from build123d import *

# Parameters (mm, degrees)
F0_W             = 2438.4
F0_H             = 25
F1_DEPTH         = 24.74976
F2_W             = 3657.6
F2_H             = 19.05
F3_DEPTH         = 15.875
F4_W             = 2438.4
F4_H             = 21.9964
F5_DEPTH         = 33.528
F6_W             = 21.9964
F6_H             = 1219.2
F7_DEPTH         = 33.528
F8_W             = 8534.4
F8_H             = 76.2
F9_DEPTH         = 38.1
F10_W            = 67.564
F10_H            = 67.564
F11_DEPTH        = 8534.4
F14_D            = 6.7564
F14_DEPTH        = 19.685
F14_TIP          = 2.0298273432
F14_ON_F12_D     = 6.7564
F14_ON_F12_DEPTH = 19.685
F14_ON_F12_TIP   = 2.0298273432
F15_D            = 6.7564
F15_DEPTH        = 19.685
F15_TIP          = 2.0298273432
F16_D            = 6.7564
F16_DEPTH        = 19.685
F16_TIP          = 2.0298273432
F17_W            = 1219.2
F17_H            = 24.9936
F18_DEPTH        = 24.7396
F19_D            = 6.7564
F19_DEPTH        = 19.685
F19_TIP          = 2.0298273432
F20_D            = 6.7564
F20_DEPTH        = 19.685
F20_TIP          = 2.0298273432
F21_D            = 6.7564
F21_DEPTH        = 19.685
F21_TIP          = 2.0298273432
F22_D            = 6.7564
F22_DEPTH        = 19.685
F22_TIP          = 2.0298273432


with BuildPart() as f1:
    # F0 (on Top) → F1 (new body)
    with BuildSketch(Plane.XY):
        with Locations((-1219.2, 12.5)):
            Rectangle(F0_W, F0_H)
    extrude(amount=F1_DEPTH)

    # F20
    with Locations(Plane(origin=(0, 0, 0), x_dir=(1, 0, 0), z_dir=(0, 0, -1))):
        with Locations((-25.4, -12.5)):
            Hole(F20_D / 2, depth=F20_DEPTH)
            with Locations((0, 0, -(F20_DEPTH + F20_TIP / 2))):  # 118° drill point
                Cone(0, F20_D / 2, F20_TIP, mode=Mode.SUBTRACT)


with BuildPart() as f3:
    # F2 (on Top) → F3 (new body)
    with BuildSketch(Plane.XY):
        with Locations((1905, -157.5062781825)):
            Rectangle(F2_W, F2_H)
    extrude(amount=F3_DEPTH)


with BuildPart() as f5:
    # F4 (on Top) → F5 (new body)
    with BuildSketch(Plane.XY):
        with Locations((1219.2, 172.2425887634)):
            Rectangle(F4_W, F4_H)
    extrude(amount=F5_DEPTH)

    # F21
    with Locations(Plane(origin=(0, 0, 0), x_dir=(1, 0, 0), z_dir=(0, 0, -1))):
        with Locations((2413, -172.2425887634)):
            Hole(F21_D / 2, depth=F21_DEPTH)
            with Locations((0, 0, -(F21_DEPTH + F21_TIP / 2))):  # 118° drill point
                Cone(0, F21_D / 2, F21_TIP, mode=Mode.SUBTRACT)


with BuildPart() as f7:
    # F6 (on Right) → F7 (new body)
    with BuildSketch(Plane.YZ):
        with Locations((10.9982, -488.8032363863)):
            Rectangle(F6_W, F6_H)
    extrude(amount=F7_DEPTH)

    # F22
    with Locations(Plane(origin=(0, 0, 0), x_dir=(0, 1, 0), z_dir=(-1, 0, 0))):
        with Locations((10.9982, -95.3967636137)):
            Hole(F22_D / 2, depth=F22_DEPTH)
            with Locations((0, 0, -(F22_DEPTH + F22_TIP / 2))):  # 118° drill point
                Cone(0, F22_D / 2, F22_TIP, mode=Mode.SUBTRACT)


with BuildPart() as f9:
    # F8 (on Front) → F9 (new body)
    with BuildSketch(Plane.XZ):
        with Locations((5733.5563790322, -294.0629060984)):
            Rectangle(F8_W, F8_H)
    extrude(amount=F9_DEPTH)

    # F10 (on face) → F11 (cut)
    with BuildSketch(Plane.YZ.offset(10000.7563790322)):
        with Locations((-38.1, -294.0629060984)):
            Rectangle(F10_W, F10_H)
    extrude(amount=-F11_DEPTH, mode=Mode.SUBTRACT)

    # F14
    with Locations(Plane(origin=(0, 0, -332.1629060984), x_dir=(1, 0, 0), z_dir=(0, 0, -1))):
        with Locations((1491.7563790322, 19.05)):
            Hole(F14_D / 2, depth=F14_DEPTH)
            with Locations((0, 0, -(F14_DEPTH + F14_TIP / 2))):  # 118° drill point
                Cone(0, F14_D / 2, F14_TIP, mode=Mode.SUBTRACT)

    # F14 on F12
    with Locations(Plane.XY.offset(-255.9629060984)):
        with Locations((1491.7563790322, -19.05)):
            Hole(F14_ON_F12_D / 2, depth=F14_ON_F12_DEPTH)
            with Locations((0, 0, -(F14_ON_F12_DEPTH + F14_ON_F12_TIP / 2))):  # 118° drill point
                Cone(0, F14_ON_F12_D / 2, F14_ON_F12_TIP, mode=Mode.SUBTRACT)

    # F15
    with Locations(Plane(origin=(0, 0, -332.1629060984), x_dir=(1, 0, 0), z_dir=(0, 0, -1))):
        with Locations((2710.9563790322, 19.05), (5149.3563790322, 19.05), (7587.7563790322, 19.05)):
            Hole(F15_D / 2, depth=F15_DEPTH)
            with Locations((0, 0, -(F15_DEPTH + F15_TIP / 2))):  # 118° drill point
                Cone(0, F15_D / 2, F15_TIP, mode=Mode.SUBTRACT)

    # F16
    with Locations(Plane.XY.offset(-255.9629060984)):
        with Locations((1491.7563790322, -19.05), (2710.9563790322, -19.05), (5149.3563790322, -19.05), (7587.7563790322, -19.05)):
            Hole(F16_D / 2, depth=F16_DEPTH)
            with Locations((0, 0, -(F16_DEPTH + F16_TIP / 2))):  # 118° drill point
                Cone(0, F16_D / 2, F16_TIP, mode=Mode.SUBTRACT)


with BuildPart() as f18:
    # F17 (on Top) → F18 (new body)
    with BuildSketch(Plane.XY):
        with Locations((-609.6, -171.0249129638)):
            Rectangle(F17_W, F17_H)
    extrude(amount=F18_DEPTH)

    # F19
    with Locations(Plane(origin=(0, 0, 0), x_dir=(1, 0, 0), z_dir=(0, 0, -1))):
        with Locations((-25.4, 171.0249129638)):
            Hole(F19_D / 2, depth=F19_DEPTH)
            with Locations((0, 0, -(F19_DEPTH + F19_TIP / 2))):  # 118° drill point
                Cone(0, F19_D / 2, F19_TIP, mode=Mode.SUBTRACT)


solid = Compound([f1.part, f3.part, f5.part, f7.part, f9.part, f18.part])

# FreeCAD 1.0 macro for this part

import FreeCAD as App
import Part
import Sketcher
from FreeCAD import Vector
Q = App.Units.Quantity

doc = App.newDocument("Part")
body = doc.addObject("PartDesign::Body", "Body")

# Sketch on XY plane
sketch1 = doc.addObject("Sketcher::SketchObject", "Sketch")
body.addObject(sketch1)
sketch1.AttachmentSupport = (doc.XY_Plane, [""])
sketch1.MapMode = "FlatFace"
sketch1.addGeometry([
    Part.LineSegment(Vector(-2438, 25, 0), Vector(-2438, 0, 0)),
    Part.LineSegment(Vector(-2438, 0, 0), Vector(0, 0, 0)),
    Part.LineSegment(Vector(0, 0, 0), Vector(0, 25, 0)),
    Part.LineSegment(Vector(0, 25, 0), Vector(-2438, 25, 0)),
], False)
sketch1.addConstraint([
    Sketcher.Constraint("Coincident", 0, 2, 1, 1),
    Sketcher.Constraint("Coincident", 1, 2, 2, 1),
    Sketcher.Constraint("Coincident", 2, 2, 3, 1),
    Sketcher.Constraint("Coincident", 3, 2, 0, 1),
    Sketcher.Constraint("Vertical", 0),
    Sketcher.Constraint("Horizontal", 1),
    Sketcher.Constraint("Vertical", 2),
    Sketcher.Constraint("Horizontal", 3),
    Sketcher.Constraint("Coincident", 1, 2, -1, 1),
    Sketcher.Constraint("DistanceX", 1, 1, 1, 2, Q("96 in")),
    Sketcher.Constraint("DistanceY", 0, 2, 0, 1, 25.0),
])
pad1 = doc.addObject("PartDesign::Pad", "Pad")
body.addObject(pad1)
pad1.Profile = sketch1
pad1.Length = Q("0.9744 in")

# Sketch on XY plane
sketch2 = doc.addObject("Sketcher::SketchObject", "Sketch001")
body.addObject(sketch2)
sketch2.AttachmentSupport = (doc.XY_Plane, [""])
sketch2.MapMode = "FlatFace"
sketch2.addGeometry(Part.Circle(Vector(-25.4, 12.5, 0), Vector(0, 0, 1), 3.4), False)
sketch2.addConstraint([
    Sketcher.Constraint("Diameter", 0, Q("0.266 in")),
    Sketcher.Constraint("DistanceX", 0, 3, -1, 1, Q("1 in")),
    Sketcher.Constraint("DistanceY", -1, 1, 0, 3, 12.5),
])
doc.recompute()
hole = doc.addObject("PartDesign::Hole", "Hole")
body.addObject(hole)
hole.Profile = sketch2
hole.ThreadType = "None"
hole.Diameter = Q("0.266 in")
hole.DepthType = "Dimension"
hole.Depth = Q("0.775 in")
hole.DrillPoint = "Angled"
hole.DrillPointAngle = 118
hole.Reversed = True
body2 = doc.addObject("PartDesign::Body", "Body001")

# Sketch on XY plane
sketch3 = doc.addObject("Sketcher::SketchObject", "Sketch002")
body2.addObject(sketch3)
sketch3.AttachmentSupport = (doc.getObject("XY_Plane001"), [""])
sketch3.MapMode = "FlatFace"
sketch3.addGeometry([
    Part.LineSegment(Vector(76, -148, 0), Vector(76, -167, 0)),
    Part.LineSegment(Vector(76, -167, 0), Vector(3734, -167, 0)),
    Part.LineSegment(Vector(3734, -167, 0), Vector(3734, -148, 0)),
    Part.LineSegment(Vector(3734, -148, 0), Vector(76, -148, 0)),
], False)
sketch3.addConstraint([
    Sketcher.Constraint("Coincident", 0, 2, 1, 1),
    Sketcher.Constraint("Coincident", 1, 2, 2, 1),
    Sketcher.Constraint("Coincident", 2, 2, 3, 1),
    Sketcher.Constraint("Coincident", 3, 2, 0, 1),
    Sketcher.Constraint("Vertical", 0),
    Sketcher.Constraint("Horizontal", 1),
    Sketcher.Constraint("Vertical", 2),
    Sketcher.Constraint("Horizontal", 3),
    Sketcher.Constraint("DistanceX", 1, 1, 1, 2, Q("144 in")),
    Sketcher.Constraint("DistanceX", -1, 1, 0, 2, Q("3 in")),
    Sketcher.Constraint("DistanceY", 0, 2, 0, 1, Q("0.75 in")),
    Sketcher.Constraint("DistanceY", 0, 2, -1, 1, 167.031278),
])
pad2 = doc.addObject("PartDesign::Pad", "Pad001")
body2.addObject(pad2)
pad2.Profile = sketch3
pad2.Length = Q("0.625 in")
body3 = doc.addObject("PartDesign::Body", "Body002")

# Sketch on XY plane
sketch4 = doc.addObject("Sketcher::SketchObject", "Sketch003")
body3.addObject(sketch4)
sketch4.AttachmentSupport = (doc.getObject("XY_Plane002"), [""])
sketch4.MapMode = "FlatFace"
sketch4.addGeometry([
    Part.LineSegment(Vector(0, 183, 0), Vector(0, 161, 0)),
    Part.LineSegment(Vector(0, 161, 0), Vector(2438, 161, 0)),
    Part.LineSegment(Vector(2438, 161, 0), Vector(2438, 183, 0)),
    Part.LineSegment(Vector(2438, 183, 0), Vector(0, 183, 0)),
], False)
sketch4.addConstraint([
    Sketcher.Constraint("Coincident", 0, 2, 1, 1),
    Sketcher.Constraint("Coincident", 1, 2, 2, 1),
    Sketcher.Constraint("Coincident", 2, 2, 3, 1),
    Sketcher.Constraint("Coincident", 3, 2, 0, 1),
    Sketcher.Constraint("Vertical", 0),
    Sketcher.Constraint("Horizontal", 1),
    Sketcher.Constraint("Vertical", 2),
    Sketcher.Constraint("Horizontal", 3),
    Sketcher.Constraint("PointOnObject", 0, 2, -2),
    Sketcher.Constraint("DistanceX", 1, 1, 1, 2, Q("96 in")),
    Sketcher.Constraint("DistanceY", 0, 2, 0, 1, Q("0.866 in")),
    Sketcher.Constraint("DistanceY", -1, 1, 0, 2, 161.244389),
])
pad3 = doc.addObject("PartDesign::Pad", "Pad002")
body3.addObject(pad3)
pad3.Profile = sketch4
pad3.Length = Q("1.32 in")

# Sketch on XY plane
sketch5 = doc.addObject("Sketcher::SketchObject", "Sketch004")
body3.addObject(sketch5)
sketch5.AttachmentSupport = (doc.getObject("XY_Plane002"), [""])
sketch5.MapMode = "FlatFace"
sketch5.addGeometry(Part.Circle(Vector(2413, 172.2, 0), Vector(0, 0, 1), 3.4), False)
sketch5.addConstraint([
    Sketcher.Constraint("Diameter", 0, Q("0.266 in")),
    Sketcher.Constraint("DistanceX", -1, 1, 0, 3, Q("95 in")),
    Sketcher.Constraint("DistanceY", -1, 1, 0, 3, 172.242589),
])
doc.recompute()
hole2 = doc.addObject("PartDesign::Hole", "Hole001")
body3.addObject(hole2)
hole2.Profile = sketch5
hole2.ThreadType = "None"
hole2.Diameter = Q("0.266 in")
hole2.DepthType = "Dimension"
hole2.Depth = Q("0.775 in")
hole2.DrillPoint = "Angled"
hole2.DrillPointAngle = 118
hole2.Reversed = True
body4 = doc.addObject("PartDesign::Body", "Body003")

# Sketch on YZ plane
sketch6 = doc.addObject("Sketcher::SketchObject", "Sketch005")
body4.addObject(sketch6)
sketch6.AttachmentSupport = (doc.getObject("YZ_Plane003"), [""])
sketch6.MapMode = "FlatFace"
sketch6.addGeometry([
    Part.LineSegment(Vector(0, 121, 0), Vector(0, -1098, 0)),
    Part.LineSegment(Vector(0, -1098, 0), Vector(22, -1098, 0)),
    Part.LineSegment(Vector(22, -1098, 0), Vector(22, 121, 0)),
    Part.LineSegment(Vector(22, 121, 0), Vector(0, 121, 0)),
], False)
sketch6.addConstraint([
    Sketcher.Constraint("Coincident", 0, 2, 1, 1),
    Sketcher.Constraint("Coincident", 1, 2, 2, 1),
    Sketcher.Constraint("Coincident", 2, 2, 3, 1),
    Sketcher.Constraint("Coincident", 3, 2, 0, 1),
    Sketcher.Constraint("Vertical", 0),
    Sketcher.Constraint("Horizontal", 1),
    Sketcher.Constraint("Vertical", 2),
    Sketcher.Constraint("Horizontal", 3),
    Sketcher.Constraint("PointOnObject", 0, 2, -2),
    Sketcher.Constraint("DistanceY", 0, 2, 0, 1, Q("48 in")),
    Sketcher.Constraint("DistanceX", 1, 1, 1, 2, Q("0.866 in")),
    Sketcher.Constraint("DistanceY", 0, 2, -1, 1, 1098.403236),
])
pad4 = doc.addObject("PartDesign::Pad", "Pad003")
body4.addObject(pad4)
pad4.Profile = sketch6
pad4.Length = Q("1.32 in")

# Sketch on YZ plane
sketch7 = doc.addObject("Sketcher::SketchObject", "Sketch006")
body4.addObject(sketch7)
sketch7.AttachmentSupport = (doc.getObject("YZ_Plane003"), [""])
sketch7.MapMode = "FlatFace"
sketch7.addGeometry(Part.Circle(Vector(11, 95.4, 0), Vector(0, 0, 1), 3.4), False)
sketch7.addConstraint([
    Sketcher.Constraint("Diameter", 0, Q("0.266 in")),
    Sketcher.Constraint("DistanceX", -1, 1, 0, 3, Q("0.433 in")),
    Sketcher.Constraint("DistanceY", -1, 1, 0, 3, 95.396764),
])
doc.recompute()
hole3 = doc.addObject("PartDesign::Hole", "Hole002")
body4.addObject(hole3)
hole3.Profile = sketch7
hole3.ThreadType = "None"
hole3.Diameter = Q("0.266 in")
hole3.DepthType = "Dimension"
hole3.Depth = Q("0.775 in")
hole3.DrillPoint = "Angled"
hole3.DrillPointAngle = 118
hole3.Reversed = True
body5 = doc.addObject("PartDesign::Body", "Body004")

# Sketch on XZ plane
sketch8 = doc.addObject("Sketcher::SketchObject", "Sketch007")
body5.addObject(sketch8)
sketch8.AttachmentSupport = (doc.getObject("XZ_Plane004"), [""])
sketch8.MapMode = "FlatFace"
sketch8.addGeometry([
    Part.LineSegment(Vector(1466, -256, 0), Vector(1466, -332, 0)),
    Part.LineSegment(Vector(1466, -332, 0), Vector(10001, -332, 0)),
    Part.LineSegment(Vector(10001, -332, 0), Vector(10001, -256, 0)),
    Part.LineSegment(Vector(10001, -256, 0), Vector(1466, -256, 0)),
], False)
sketch8.addConstraint([
    Sketcher.Constraint("Coincident", 0, 2, 1, 1),
    Sketcher.Constraint("Coincident", 1, 2, 2, 1),
    Sketcher.Constraint("Coincident", 2, 2, 3, 1),
    Sketcher.Constraint("Coincident", 3, 2, 0, 1),
    Sketcher.Constraint("Vertical", 0),
    Sketcher.Constraint("Horizontal", 1),
    Sketcher.Constraint("Vertical", 2),
    Sketcher.Constraint("Horizontal", 3),
    Sketcher.Constraint("DistanceX", 1, 1, 1, 2, Q("336 in")),
    Sketcher.Constraint("DistanceY", 0, 2, 0, 1, Q("3 in")),
    Sketcher.Constraint("DistanceX", -1, 1, 0, 2, 1466.356379),
    Sketcher.Constraint("DistanceY", 0, 2, -1, 1, 332.162906),
])
pad5 = doc.addObject("PartDesign::Pad", "Pad004")
body5.addObject(pad5)
pad5.Profile = sketch8
pad5.Length = Q("1.5 in")

# Sketch on YZ plane
sketch9 = doc.addObject("Sketcher::SketchObject", "Sketch008")
body5.addObject(sketch9)
sketch9.AttachmentSupport = (doc.getObject("YZ_Plane004"), [""])
sketch9.MapMode = "FlatFace"
sketch9.AttachmentOffset = App.Placement(Vector(0, 0, 10000.756379), App.Rotation())
sketch9.addGeometry([
    Part.LineSegment(Vector(-72, -260, 0), Vector(-72, -328, 0)),
    Part.LineSegment(Vector(-72, -328, 0), Vector(-4, -328, 0)),
    Part.LineSegment(Vector(-4, -328, 0), Vector(-4, -260, 0)),
    Part.LineSegment(Vector(-4, -260, 0), Vector(-72, -260, 0)),
], False)
sketch9.addConstraint([
    Sketcher.Constraint("Coincident", 0, 2, 1, 1),
    Sketcher.Constraint("Coincident", 1, 2, 2, 1),
    Sketcher.Constraint("Coincident", 2, 2, 3, 1),
    Sketcher.Constraint("Coincident", 3, 2, 0, 1),
    Sketcher.Constraint("Vertical", 0),
    Sketcher.Constraint("Horizontal", 1),
    Sketcher.Constraint("Vertical", 2),
    Sketcher.Constraint("Horizontal", 3),
    Sketcher.Constraint("Equal", 3, 0),
    Sketcher.Constraint("DistanceX", 1, 1, 1, 2, Q("2.66 in")),
    Sketcher.Constraint("DistanceX", 0, 2, -1, 1, Q("2.83 in")),
    Sketcher.Constraint("DistanceY", 0, 2, -1, 1, 327.844906),
])
pocket1 = doc.addObject("PartDesign::Pocket", "Pocket")
body5.addObject(pocket1)
pocket1.Profile = sketch9
pocket1.Length = Q("336 in")

# Sketch on XY plane
sketch10 = doc.addObject("Sketcher::SketchObject", "Sketch009")
body5.addObject(sketch10)
sketch10.AttachmentSupport = (doc.getObject("XY_Plane004"), [""])
sketch10.MapMode = "FlatFace"
sketch10.AttachmentOffset = App.Placement(Vector(0, 0, -332.162906), App.Rotation())
sketch10.addGeometry(Part.Circle(Vector(1491.8, -19.1, 0), Vector(0, 0, 1), 3.4), False)
sketch10.addConstraint([
    Sketcher.Constraint("Diameter", 0, Q("0.266 in")),
    Sketcher.Constraint("DistanceY", 0, 3, -1, 1, Q("0.75 in")),
    Sketcher.Constraint("DistanceX", -1, 1, 0, 3, 1491.756379),
])
doc.recompute()
hole4 = doc.addObject("PartDesign::Hole", "Hole003")
body5.addObject(hole4)
hole4.Profile = sketch10
hole4.ThreadType = "None"
hole4.Diameter = Q("0.266 in")
hole4.DepthType = "Dimension"
hole4.Depth = Q("0.775 in")
hole4.DrillPoint = "Angled"
hole4.DrillPointAngle = 118
hole4.Reversed = True

# Sketch on XY plane
sketch11 = doc.addObject("Sketcher::SketchObject", "Sketch010")
body5.addObject(sketch11)
sketch11.AttachmentSupport = (doc.getObject("XY_Plane004"), [""])
sketch11.MapMode = "FlatFace"
sketch11.AttachmentOffset = App.Placement(Vector(0, 0, -255.962906), App.Rotation())
sketch11.addGeometry(Part.Circle(Vector(1491.8, -19.1, 0), Vector(0, 0, 1), 3.4), False)
sketch11.addConstraint([
    Sketcher.Constraint("Diameter", 0, Q("0.266 in")),
    Sketcher.Constraint("DistanceY", 0, 3, -1, 1, Q("0.75 in")),
    Sketcher.Constraint("DistanceX", -1, 1, 0, 3, 1491.756379),
])
doc.recompute()
hole5 = doc.addObject("PartDesign::Hole", "Hole004")
body5.addObject(hole5)
hole5.Profile = sketch11
hole5.ThreadType = "None"
hole5.Diameter = Q("0.266 in")
hole5.DepthType = "Dimension"
hole5.Depth = Q("0.775 in")
hole5.DrillPoint = "Angled"
hole5.DrillPointAngle = 118

# Sketch on XY plane
sketch12 = doc.addObject("Sketcher::SketchObject", "Sketch011")
body5.addObject(sketch12)
sketch12.AttachmentSupport = (doc.getObject("XY_Plane004"), [""])
sketch12.MapMode = "FlatFace"
sketch12.AttachmentOffset = App.Placement(Vector(0, 0, -332.162906), App.Rotation())
sketch12.addGeometry([
    Part.Circle(Vector(2711, -19.1, 0), Vector(0, 0, 1), 3.4),
    Part.Circle(Vector(5149.4, -19.1, 0), Vector(0, 0, 1), 3.4),
    Part.Circle(Vector(7587.8, -19.1, 0), Vector(0, 0, 1), 3.4),
], False)
sketch12.addConstraint([
    Sketcher.Constraint("Equal", 0, 1),
    Sketcher.Constraint("Equal", 1, 2),
    Sketcher.Constraint("Horizontal", 0, 3, 1, 3),
    Sketcher.Constraint("Horizontal", 1, 3, 2, 3),
    Sketcher.Constraint("Diameter", 0, Q("0.266 in")),
    Sketcher.Constraint("DistanceX", 0, 3, 1, 3, Q("96 in")),
    Sketcher.Constraint("DistanceX", 1, 3, 2, 3, Q("96 in")),
    Sketcher.Constraint("DistanceY", 0, 3, -1, 1, Q("0.75 in")),
    Sketcher.Constraint("DistanceX", -1, 1, 0, 3, 2710.956379),
])
doc.recompute()
hole6 = doc.addObject("PartDesign::Hole", "Hole005")
body5.addObject(hole6)
hole6.Profile = sketch12
hole6.ThreadType = "None"
hole6.Diameter = Q("0.266 in")
hole6.DepthType = "Dimension"
hole6.Depth = Q("0.775 in")
hole6.DrillPoint = "Angled"
hole6.DrillPointAngle = 118
hole6.Reversed = True

# Sketch on XY plane
sketch13 = doc.addObject("Sketcher::SketchObject", "Sketch012")
body5.addObject(sketch13)
sketch13.AttachmentSupport = (doc.getObject("XY_Plane004"), [""])
sketch13.MapMode = "FlatFace"
sketch13.AttachmentOffset = App.Placement(Vector(0, 0, -255.962906), App.Rotation())
sketch13.addGeometry([
    Part.Circle(Vector(1491.8, -19.1, 0), Vector(0, 0, 1), 3.4),
    Part.Circle(Vector(2711, -19.1, 0), Vector(0, 0, 1), 3.4),
    Part.Circle(Vector(5149.4, -19.1, 0), Vector(0, 0, 1), 3.4),
    Part.Circle(Vector(7587.8, -19.1, 0), Vector(0, 0, 1), 3.4),
], False)
sketch13.addConstraint([
    Sketcher.Constraint("Equal", 0, 1),
    Sketcher.Constraint("Equal", 1, 2),
    Sketcher.Constraint("Equal", 2, 3),
    Sketcher.Constraint("Horizontal", 0, 3, 1, 3),
    Sketcher.Constraint("Horizontal", 1, 3, 2, 3),
    Sketcher.Constraint("Horizontal", 2, 3, 3, 3),
    Sketcher.Constraint("Diameter", 0, Q("0.266 in")),
    Sketcher.Constraint("DistanceX", 0, 3, 1, 3, Q("48 in")),
    Sketcher.Constraint("DistanceX", 1, 3, 2, 3, Q("96 in")),
    Sketcher.Constraint("DistanceX", 2, 3, 3, 3, Q("96 in")),
    Sketcher.Constraint("DistanceY", 0, 3, -1, 1, Q("0.75 in")),
    Sketcher.Constraint("DistanceX", -1, 1, 0, 3, 1491.756379),
])
doc.recompute()
hole7 = doc.addObject("PartDesign::Hole", "Hole006")
body5.addObject(hole7)
hole7.Profile = sketch13
hole7.ThreadType = "None"
hole7.Diameter = Q("0.266 in")
hole7.DepthType = "Dimension"
hole7.Depth = Q("0.775 in")
hole7.DrillPoint = "Angled"
hole7.DrillPointAngle = 118
body6 = doc.addObject("PartDesign::Body", "Body005")

# Sketch on XY plane
sketch14 = doc.addObject("Sketcher::SketchObject", "Sketch013")
body6.addObject(sketch14)
sketch14.AttachmentSupport = (doc.getObject("XY_Plane005"), [""])
sketch14.MapMode = "FlatFace"
sketch14.addGeometry([
    Part.LineSegment(Vector(-1219, -159, 0), Vector(-1219, -184, 0)),
    Part.LineSegment(Vector(-1219, -184, 0), Vector(0, -184, 0)),
    Part.LineSegment(Vector(0, -184, 0), Vector(0, -159, 0)),
    Part.LineSegment(Vector(0, -159, 0), Vector(-1219, -159, 0)),
], False)
sketch14.addConstraint([
    Sketcher.Constraint("Coincident", 0, 2, 1, 1),
    Sketcher.Constraint("Coincident", 1, 2, 2, 1),
    Sketcher.Constraint("Coincident", 2, 2, 3, 1),
    Sketcher.Constraint("Coincident", 3, 2, 0, 1),
    Sketcher.Constraint("Vertical", 0),
    Sketcher.Constraint("Horizontal", 1),
    Sketcher.Constraint("Vertical", 2),
    Sketcher.Constraint("Horizontal", 3),
    Sketcher.Constraint("PointOnObject", 1, 2, -2),
    Sketcher.Constraint("DistanceX", 1, 1, 1, 2, Q("48 in")),
    Sketcher.Constraint("DistanceY", 0, 2, 0, 1, Q("0.984 in")),
    Sketcher.Constraint("DistanceY", 0, 2, -1, 1, 183.521713),
])
pad6 = doc.addObject("PartDesign::Pad", "Pad005")
body6.addObject(pad6)
pad6.Profile = sketch14
pad6.Length = Q("0.974 in")

# Sketch on XY plane
sketch15 = doc.addObject("Sketcher::SketchObject", "Sketch014")
body6.addObject(sketch15)
sketch15.AttachmentSupport = (doc.getObject("XY_Plane005"), [""])
sketch15.MapMode = "FlatFace"
sketch15.addGeometry(Part.Circle(Vector(-25.4, -171, 0), Vector(0, 0, 1), 3.4), False)
sketch15.addConstraint([
    Sketcher.Constraint("Diameter", 0, Q("0.266 in")),
    Sketcher.Constraint("DistanceX", 0, 3, -1, 1, Q("1 in")),
    Sketcher.Constraint("DistanceY", 0, 3, -1, 1, 171.024913),
])
doc.recompute()
hole8 = doc.addObject("PartDesign::Hole", "Hole007")
body6.addObject(hole8)
hole8.Profile = sketch15
hole8.ThreadType = "None"
hole8.Diameter = Q("0.266 in")
hole8.DepthType = "Dimension"
hole8.Depth = Q("0.775 in")
hole8.DrillPoint = "Angled"
hole8.DrillPointAngle = 118
hole8.Reversed = True

doc.recompute()
